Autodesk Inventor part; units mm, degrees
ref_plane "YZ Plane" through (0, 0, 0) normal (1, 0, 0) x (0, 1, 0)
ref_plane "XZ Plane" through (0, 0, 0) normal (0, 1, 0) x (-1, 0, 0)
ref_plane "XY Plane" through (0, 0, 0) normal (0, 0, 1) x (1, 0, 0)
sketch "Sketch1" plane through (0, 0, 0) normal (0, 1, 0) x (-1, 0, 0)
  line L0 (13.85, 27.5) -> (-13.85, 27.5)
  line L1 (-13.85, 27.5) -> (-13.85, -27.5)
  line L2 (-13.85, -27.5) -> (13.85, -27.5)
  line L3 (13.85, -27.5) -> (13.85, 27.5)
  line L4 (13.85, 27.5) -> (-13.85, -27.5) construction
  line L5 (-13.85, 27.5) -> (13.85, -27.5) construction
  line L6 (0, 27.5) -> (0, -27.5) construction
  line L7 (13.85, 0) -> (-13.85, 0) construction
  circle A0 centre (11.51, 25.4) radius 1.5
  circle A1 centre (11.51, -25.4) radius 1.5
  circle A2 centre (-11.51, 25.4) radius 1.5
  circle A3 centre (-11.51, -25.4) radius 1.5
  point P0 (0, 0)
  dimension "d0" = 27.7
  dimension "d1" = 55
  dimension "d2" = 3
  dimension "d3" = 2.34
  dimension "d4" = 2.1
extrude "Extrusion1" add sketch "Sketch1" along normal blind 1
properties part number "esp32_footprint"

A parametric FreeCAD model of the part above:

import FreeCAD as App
import Part
import Sketcher
from FreeCAD import Vector

doc = App.newDocument("Part")
body = doc.addObject("PartDesign::Body", "Body")

sketch1 = body.newObject("Sketcher::SketchObject", "Sketch")
sketch1.AttachmentSupport = (doc.getObject("XZ_Plane"), [""])
sketch1.MapMode = "FlatFace"
sketch1.addGeometry([
    Part.LineSegment(Vector(-13.8, -27.5, 0), Vector(-13.8, 27.5, 0)),
    Part.LineSegment(Vector(-13.8, 27.5, 0), Vector(13.8, 27.5, 0)),
    Part.LineSegment(Vector(13.8, 27.5, 0), Vector(13.8, -27.5, 0)),
    Part.LineSegment(Vector(13.8, -27.5, 0), Vector(-13.8, -27.5, 0)),
    Part.Circle(Vector(11.5, -25.4, 0), Vector(0, 0, 1), 1.5),
    Part.Circle(Vector(-11.5, -25.4, 0), Vector(0, 0, 1), 1.5),
    Part.Circle(Vector(11.5, 25.4, 0), Vector(0, 0, 1), 1.5),
    Part.Circle(Vector(-11.5, 25.4, 0), Vector(0, 0, 1), 1.5),
], False)
sketch1.addConstraint([
    Sketcher.Constraint("Coincident", 0, 2, 1, 1),
    Sketcher.Constraint("Coincident", 1, 2, 2, 1),
    Sketcher.Constraint("Coincident", 2, 2, 3, 1),
    Sketcher.Constraint("Coincident", 3, 2, 0, 1),
    Sketcher.Constraint("Vertical", 0),
    Sketcher.Constraint("Horizontal", 1),
    Sketcher.Constraint("Vertical", 2),
    Sketcher.Constraint("Horizontal", 3),
    Sketcher.Constraint("Equal", 4, 5),
    Sketcher.Constraint("Equal", 5, 6),
    Sketcher.Constraint("Equal", 6, 7),
    Sketcher.Constraint("Symmetric", 5, 3, 6, 3, -1, 1),
    Sketcher.Constraint("Symmetric", 4, 3, 7, 3, -1, 1),
    Sketcher.Constraint("Symmetric", 0, 2, 2, 2, -1, 1),
    Sketcher.Constraint("Symmetric", 4, 3, 5, 3, -2),
    Sketcher.Constraint("Diameter", 4, 3.0),
    Sketcher.Constraint("DistanceY", 0, 1, 0, 2, 55.0),
    Sketcher.Constraint("DistanceX", 1, 1, 1, 2, 27.7),
    Sketcher.Constraint("DistanceY", 7, 3, 0, 2, 2.1),
    Sketcher.Constraint("DistanceX", 0, 2, 7, 3, 2.34),
])
pad1 = body.newObject("PartDesign::Pad", "Pad")
pad1.Profile = sketch1
pad1.Length = 1
pad1.Reversed = True

doc.recompute()
